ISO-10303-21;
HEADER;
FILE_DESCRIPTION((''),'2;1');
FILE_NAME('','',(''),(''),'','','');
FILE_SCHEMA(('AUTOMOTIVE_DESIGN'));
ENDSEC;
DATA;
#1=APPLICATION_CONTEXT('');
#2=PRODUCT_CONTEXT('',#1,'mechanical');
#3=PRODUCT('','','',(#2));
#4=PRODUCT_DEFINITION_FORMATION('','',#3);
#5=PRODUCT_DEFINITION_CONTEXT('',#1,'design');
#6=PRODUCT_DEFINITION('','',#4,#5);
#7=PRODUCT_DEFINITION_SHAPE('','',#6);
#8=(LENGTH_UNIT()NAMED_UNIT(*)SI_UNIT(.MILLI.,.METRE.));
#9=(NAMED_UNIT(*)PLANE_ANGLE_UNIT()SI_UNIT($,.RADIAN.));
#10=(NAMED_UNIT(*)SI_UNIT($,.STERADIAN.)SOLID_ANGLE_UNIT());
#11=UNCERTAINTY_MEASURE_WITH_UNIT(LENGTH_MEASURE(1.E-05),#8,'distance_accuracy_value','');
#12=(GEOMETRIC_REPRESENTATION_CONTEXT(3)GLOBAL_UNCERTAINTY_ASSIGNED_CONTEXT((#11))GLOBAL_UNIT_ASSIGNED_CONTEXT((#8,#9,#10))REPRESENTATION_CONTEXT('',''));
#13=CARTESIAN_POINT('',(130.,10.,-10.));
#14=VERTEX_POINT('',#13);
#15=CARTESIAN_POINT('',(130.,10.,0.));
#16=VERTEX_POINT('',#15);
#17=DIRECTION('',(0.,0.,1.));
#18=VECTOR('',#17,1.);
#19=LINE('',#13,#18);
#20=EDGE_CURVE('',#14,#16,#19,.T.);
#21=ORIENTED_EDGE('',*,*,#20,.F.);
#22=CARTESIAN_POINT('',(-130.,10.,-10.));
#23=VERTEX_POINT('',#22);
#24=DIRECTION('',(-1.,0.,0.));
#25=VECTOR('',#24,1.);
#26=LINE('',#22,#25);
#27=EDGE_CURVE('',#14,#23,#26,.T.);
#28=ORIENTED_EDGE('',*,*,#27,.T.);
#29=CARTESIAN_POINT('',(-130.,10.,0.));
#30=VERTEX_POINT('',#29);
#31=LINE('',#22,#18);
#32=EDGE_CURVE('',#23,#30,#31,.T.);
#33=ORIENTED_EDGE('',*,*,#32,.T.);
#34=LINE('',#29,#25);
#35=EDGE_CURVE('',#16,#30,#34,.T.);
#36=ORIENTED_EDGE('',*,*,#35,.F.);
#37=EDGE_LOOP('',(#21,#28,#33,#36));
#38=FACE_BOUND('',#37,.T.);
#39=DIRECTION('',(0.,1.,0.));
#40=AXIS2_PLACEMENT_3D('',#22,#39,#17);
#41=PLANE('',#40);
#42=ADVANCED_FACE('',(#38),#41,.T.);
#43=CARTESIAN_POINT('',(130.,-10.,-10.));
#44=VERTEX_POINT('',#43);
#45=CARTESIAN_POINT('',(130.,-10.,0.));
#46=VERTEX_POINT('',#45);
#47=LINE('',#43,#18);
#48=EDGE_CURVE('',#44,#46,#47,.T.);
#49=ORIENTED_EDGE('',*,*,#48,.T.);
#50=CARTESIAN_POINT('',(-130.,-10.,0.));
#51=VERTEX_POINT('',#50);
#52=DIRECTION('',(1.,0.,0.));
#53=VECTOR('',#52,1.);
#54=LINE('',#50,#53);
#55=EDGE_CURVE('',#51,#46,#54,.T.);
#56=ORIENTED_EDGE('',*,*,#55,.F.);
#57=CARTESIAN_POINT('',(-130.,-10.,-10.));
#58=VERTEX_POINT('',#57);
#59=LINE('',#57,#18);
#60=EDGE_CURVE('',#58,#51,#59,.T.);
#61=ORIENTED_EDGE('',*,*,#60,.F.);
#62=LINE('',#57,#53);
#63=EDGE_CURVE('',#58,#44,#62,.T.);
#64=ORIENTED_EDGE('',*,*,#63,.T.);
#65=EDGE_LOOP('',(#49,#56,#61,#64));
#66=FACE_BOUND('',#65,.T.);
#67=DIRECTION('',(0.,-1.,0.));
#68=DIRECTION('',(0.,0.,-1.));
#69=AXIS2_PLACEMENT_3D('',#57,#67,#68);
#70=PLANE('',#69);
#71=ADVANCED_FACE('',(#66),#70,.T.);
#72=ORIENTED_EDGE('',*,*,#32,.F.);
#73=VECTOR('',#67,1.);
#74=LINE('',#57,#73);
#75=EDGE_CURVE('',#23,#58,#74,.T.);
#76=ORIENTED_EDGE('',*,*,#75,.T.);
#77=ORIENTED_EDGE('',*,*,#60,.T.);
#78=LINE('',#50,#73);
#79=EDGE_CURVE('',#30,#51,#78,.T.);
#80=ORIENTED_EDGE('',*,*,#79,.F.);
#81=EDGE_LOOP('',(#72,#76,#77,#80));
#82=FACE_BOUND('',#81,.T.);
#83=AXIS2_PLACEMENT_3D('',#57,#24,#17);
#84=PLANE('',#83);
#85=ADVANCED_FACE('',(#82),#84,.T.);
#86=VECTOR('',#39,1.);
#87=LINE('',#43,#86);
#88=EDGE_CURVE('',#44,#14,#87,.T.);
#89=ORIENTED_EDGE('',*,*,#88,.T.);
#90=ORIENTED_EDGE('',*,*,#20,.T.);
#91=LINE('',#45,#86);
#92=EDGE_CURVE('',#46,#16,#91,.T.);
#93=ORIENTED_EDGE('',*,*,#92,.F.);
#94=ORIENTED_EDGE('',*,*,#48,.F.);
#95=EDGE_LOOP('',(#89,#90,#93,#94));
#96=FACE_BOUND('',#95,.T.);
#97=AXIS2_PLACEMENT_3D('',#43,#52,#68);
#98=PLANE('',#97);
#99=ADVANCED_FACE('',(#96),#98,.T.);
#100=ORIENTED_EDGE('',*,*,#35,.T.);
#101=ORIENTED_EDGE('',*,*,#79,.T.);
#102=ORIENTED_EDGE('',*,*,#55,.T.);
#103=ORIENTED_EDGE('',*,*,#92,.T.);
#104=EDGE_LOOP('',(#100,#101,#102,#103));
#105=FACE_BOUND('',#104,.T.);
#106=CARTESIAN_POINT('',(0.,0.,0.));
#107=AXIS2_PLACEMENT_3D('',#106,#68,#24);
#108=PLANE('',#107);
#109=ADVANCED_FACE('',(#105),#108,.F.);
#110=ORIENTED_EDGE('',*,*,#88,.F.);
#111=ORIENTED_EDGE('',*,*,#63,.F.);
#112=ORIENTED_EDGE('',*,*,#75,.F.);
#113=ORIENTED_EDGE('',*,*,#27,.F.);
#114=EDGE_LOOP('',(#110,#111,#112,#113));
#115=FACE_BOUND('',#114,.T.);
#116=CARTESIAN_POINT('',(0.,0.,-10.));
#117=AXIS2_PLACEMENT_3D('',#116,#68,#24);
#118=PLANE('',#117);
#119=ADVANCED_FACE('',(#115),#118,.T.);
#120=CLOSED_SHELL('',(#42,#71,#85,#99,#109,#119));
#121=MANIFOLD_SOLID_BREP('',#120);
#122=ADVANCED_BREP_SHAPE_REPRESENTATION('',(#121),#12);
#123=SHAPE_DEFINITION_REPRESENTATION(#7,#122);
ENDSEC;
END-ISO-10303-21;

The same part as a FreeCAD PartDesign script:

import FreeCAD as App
import Part
import Sketcher
Q = App.Units.Quantity


def add_polygon(sketch, points):
    """Adds a closed chain of lines whose ends are joined by coincident constraints."""
    first, n = sketch.GeometryCount, len(points)
    for a, b in zip(points, points[1:] + points[:1]):
        sketch.addGeometry(Part.LineSegment(App.Vector(*a, 0), App.Vector(*b, 0)), False)
    for i in range(n):
        sketch.addConstraint(Sketcher.Constraint("Coincident", first + i, 2, first + (i + 1) % n, 1))

doc = App.newDocument("Part")
body = doc.addObject("PartDesign::Body", "Body")

# Sketch on XY plane
sketch1 = body.newObject("Sketcher::SketchObject", "Sketch")
sketch1.AttachmentSupport = (doc.getObject("XY_Plane"), [""])
sketch1.MapMode = "FlatFace"
add_polygon(sketch1, [(-130, 10), (-130, -10), (130, -10), (130, 10)])  # lines 0-3
sketch1.addConstraint([
    Sketcher.Constraint("Vertical", 0),
    Sketcher.Constraint("Horizontal", 1),
    Sketcher.Constraint("Vertical", 2),
    Sketcher.Constraint("Horizontal", 3),
    Sketcher.Constraint("Symmetric", 0, 2, 2, 2, -1, 1),
    Sketcher.Constraint("DistanceX", 1, 1, 1, 2, Q("260 mm")),
    Sketcher.Constraint("DistanceY", 0, 2, 0, 1, Q("20 mm")),
])
pad1 = body.newObject("PartDesign::Pad", "Pad")
pad1.Profile = sketch1
pad1.Length = 10
pad1.Reversed = True

doc.recompute()
